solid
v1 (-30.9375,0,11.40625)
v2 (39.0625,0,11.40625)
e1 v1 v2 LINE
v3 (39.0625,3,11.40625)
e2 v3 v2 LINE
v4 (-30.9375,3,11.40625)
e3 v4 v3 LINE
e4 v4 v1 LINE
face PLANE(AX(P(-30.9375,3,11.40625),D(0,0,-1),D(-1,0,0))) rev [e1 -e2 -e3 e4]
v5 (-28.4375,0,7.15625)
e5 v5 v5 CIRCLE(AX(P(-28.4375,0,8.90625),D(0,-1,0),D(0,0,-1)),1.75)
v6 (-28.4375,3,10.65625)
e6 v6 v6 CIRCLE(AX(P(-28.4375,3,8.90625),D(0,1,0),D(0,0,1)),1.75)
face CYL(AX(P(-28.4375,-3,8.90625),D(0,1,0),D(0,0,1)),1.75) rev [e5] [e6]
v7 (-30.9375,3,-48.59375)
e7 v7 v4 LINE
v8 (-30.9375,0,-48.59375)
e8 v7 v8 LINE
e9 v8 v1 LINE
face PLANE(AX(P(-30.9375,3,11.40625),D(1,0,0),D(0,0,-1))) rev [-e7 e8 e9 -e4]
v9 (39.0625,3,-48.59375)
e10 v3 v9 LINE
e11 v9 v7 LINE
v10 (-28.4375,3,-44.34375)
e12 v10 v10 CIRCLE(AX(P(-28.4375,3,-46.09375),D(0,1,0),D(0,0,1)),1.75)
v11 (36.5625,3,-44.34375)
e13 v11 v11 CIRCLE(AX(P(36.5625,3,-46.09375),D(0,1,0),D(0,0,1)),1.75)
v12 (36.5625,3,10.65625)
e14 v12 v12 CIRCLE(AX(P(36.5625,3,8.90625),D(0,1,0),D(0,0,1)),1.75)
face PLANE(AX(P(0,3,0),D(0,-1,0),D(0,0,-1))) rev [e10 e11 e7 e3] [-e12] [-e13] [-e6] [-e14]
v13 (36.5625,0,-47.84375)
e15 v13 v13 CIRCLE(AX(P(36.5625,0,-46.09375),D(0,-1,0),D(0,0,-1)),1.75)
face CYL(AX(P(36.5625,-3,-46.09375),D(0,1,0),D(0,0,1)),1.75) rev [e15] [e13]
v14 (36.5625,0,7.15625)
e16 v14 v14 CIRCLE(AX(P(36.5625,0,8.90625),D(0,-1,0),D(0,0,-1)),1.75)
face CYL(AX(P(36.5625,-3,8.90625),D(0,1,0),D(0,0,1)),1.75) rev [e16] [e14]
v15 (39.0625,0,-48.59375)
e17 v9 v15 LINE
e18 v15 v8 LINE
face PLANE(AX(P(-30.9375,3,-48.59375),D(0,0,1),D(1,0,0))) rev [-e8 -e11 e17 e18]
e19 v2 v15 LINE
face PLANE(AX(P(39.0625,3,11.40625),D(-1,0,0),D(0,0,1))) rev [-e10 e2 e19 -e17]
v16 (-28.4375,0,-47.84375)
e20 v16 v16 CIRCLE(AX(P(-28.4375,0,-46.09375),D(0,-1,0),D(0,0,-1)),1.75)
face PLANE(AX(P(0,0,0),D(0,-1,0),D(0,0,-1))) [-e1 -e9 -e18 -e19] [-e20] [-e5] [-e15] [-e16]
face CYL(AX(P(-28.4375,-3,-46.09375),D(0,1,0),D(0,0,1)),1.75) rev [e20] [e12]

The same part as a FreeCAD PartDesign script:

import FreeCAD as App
import Part
import Sketcher
from FreeCAD import Vector


def add_polygon(sketch, points):
    """Adds a closed chain of lines whose ends are joined by coincident constraints."""
    first, n = sketch.GeometryCount, len(points)
    for a, b in zip(points, points[1:] + points[:1]):
        sketch.addGeometry(Part.LineSegment(App.Vector(*a, 0), App.Vector(*b, 0)), False)
    for i in range(n):
        sketch.addConstraint(Sketcher.Constraint("Coincident", first + i, 2, first + (i + 1) % n, 1))

doc = App.newDocument("Part")
body = doc.addObject("PartDesign::Body", "Body")

# Sketch on XZ plane
sketch1 = body.newObject("Sketcher::SketchObject", "Sketch")
sketch1.AttachmentSupport = (doc.getObject("XZ_Plane"), [""])
sketch1.MapMode = "FlatFace"
add_polygon(sketch1, [(-31, -49), (-31, 11), (39, 11), (39, -49)])  # lines 0-3
sketch1.addConstraint([
    Sketcher.Constraint("Vertical", 0),
    Sketcher.Constraint("Horizontal", 1),
    Sketcher.Constraint("Vertical", 2),
    Sketcher.Constraint("Horizontal", 3),
    Sketcher.Constraint("DistanceX", 1, 1, 1, 2, 70.0),
    Sketcher.Constraint("DistanceY", 0, 1, 0, 2, 60.0),
    Sketcher.Constraint("DistanceX", 0, 2, -1, 1, 30.9375),
    Sketcher.Constraint("DistanceY", -1, 1, 0, 2, 11.40625),
])
pad1 = body.newObject("PartDesign::Pad", "Pad")
pad1.Profile = sketch1
pad1.Length = 3
pad1.Reversed = True

# Sketch on XZ plane
sketch2 = body.newObject("Sketcher::SketchObject", "Sketch001")
sketch2.AttachmentSupport = (doc.getObject("XZ_Plane"), [""])
sketch2.MapMode = "FlatFace"
sketch2.AttachmentOffset = App.Placement(Vector(0, 0, -3), App.Rotation())
sketch2.addGeometry([
    Part.Circle(Vector(-28.4, -46.1, 0), Vector(0, 0, 1), 1.8),
    Part.Circle(Vector(36.6, -46.1, 0), Vector(0, 0, 1), 1.8),
    Part.Circle(Vector(36.6, 8.9, 0), Vector(0, 0, 1), 1.8),
    Part.Circle(Vector(-28.4, 8.9, 0), Vector(0, 0, 1), 1.8),
], False)
sketch2.addConstraint([
    Sketcher.Constraint("Equal", 0, 1),
    Sketcher.Constraint("Equal", 1, 2),
    Sketcher.Constraint("Equal", 2, 3),
    Sketcher.Constraint("Horizontal", 0, 3, 1, 3),
    Sketcher.Constraint("Horizontal", 2, 3, 3, 3),
    Sketcher.Constraint("Vertical", 1, 3, 2, 3),
    Sketcher.Constraint("Vertical", 0, 3, 3, 3),
    Sketcher.Constraint("Diameter", 0, 3.5),
    Sketcher.Constraint("DistanceX", 0, 3, 1, 3, 65.0),
    Sketcher.Constraint("DistanceY", 1, 3, 2, 3, 55.0),
    Sketcher.Constraint("DistanceX", 0, 3, -1, 1, 28.4375),
    Sketcher.Constraint("DistanceY", 0, 3, -1, 1, 46.09375),
])
pocket1 = body.newObject("PartDesign::Pocket", "Pocket")
pocket1.Profile = sketch2
pocket1.Length = 6
pocket1.Reversed = True

doc.recompute()
